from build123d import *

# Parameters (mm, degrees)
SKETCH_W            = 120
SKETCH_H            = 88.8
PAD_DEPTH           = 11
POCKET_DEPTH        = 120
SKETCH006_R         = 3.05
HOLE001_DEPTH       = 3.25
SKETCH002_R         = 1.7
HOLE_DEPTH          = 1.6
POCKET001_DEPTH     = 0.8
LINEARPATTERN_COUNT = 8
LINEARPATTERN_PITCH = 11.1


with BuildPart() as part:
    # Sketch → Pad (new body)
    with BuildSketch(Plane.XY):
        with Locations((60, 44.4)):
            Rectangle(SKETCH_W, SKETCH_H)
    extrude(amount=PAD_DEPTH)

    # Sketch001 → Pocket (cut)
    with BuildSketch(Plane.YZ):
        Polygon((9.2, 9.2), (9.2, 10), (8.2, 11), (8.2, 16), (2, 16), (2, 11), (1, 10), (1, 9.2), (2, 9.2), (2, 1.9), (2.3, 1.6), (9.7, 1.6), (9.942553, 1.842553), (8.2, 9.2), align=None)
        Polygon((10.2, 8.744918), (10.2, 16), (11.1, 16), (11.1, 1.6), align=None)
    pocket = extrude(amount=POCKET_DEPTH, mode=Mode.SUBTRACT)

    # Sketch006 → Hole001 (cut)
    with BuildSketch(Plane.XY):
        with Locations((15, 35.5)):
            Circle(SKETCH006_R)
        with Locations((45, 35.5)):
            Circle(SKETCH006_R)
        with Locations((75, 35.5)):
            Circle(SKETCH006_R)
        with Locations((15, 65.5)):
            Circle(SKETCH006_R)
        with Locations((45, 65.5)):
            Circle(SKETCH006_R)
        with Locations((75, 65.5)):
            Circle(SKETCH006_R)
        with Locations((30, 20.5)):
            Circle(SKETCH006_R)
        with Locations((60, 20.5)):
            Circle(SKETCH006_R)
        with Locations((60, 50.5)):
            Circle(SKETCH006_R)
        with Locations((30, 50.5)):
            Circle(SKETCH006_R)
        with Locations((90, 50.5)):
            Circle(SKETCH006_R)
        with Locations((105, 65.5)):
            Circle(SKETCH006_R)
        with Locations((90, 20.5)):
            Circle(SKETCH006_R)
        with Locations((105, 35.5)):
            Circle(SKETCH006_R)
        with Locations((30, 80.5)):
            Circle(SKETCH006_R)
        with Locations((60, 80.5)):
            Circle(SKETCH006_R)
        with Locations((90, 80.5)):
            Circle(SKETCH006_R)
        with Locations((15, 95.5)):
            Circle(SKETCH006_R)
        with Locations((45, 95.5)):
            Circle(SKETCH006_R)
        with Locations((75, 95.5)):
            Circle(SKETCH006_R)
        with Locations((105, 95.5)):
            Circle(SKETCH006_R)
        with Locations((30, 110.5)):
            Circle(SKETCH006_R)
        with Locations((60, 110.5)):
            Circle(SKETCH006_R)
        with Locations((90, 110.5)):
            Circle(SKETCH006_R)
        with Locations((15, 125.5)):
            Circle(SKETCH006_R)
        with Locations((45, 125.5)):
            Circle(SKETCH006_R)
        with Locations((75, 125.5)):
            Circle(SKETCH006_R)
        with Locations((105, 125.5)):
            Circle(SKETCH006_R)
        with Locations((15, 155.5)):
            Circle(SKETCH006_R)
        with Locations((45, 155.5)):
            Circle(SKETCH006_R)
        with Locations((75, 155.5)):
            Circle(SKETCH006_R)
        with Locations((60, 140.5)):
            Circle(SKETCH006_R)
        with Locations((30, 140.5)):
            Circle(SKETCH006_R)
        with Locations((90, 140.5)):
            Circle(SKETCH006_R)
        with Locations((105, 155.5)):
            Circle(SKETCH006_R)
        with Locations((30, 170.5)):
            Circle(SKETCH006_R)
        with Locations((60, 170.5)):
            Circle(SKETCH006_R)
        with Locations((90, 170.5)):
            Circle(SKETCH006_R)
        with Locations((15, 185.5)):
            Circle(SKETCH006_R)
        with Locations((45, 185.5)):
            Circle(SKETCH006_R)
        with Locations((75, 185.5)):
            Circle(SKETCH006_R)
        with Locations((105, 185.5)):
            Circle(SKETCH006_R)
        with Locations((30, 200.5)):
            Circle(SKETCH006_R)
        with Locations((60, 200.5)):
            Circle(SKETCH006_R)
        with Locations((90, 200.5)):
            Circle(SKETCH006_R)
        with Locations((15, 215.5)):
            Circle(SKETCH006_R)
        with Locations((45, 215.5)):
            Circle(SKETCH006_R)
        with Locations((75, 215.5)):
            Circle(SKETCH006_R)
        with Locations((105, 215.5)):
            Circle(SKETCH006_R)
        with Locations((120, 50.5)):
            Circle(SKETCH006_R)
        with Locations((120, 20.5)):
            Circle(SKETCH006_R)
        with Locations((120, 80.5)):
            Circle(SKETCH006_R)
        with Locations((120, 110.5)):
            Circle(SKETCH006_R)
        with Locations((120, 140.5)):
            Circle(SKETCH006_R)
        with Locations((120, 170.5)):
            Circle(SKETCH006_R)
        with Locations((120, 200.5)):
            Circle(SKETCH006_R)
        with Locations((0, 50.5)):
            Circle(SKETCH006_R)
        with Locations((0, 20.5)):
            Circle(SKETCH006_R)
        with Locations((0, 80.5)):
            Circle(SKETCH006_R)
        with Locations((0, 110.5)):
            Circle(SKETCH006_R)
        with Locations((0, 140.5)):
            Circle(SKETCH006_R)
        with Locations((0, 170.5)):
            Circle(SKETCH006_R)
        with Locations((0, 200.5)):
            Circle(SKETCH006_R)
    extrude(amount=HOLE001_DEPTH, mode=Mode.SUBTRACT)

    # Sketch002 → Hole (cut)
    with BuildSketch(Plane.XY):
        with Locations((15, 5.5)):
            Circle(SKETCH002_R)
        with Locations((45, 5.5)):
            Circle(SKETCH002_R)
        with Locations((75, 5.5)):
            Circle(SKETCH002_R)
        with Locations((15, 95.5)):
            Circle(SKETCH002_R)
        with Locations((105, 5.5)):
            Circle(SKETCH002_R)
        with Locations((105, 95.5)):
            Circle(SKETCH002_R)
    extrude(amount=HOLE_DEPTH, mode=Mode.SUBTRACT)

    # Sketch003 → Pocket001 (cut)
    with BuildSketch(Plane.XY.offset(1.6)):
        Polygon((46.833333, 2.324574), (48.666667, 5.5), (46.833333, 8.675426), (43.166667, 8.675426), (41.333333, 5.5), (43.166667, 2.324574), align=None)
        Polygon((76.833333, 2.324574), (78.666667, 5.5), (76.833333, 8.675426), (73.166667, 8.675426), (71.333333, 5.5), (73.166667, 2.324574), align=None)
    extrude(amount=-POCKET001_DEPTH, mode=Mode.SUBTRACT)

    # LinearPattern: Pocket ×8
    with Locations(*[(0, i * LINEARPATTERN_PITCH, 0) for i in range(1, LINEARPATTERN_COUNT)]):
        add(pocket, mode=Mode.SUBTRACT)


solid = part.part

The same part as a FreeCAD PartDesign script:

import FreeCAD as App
import Part
import Sketcher
from FreeCAD import Vector
Q = App.Units.Quantity


def add_polygon(sketch, points):
    """Adds a closed chain of lines whose ends are joined by coincident constraints."""
    first, n = sketch.GeometryCount, len(points)
    for a, b in zip(points, points[1:] + points[:1]):
        sketch.addGeometry(Part.LineSegment(App.Vector(*a, 0), App.Vector(*b, 0)), False)
    for i in range(n):
        sketch.addConstraint(Sketcher.Constraint("Coincident", first + i, 2, first + (i + 1) % n, 1))

doc = App.newDocument("Part")
body = doc.addObject("PartDesign::Body", "Body")

# Sketch on XY plane
sketch1 = doc.addObject("Sketcher::SketchObject", "Sketch")
body.addObject(sketch1)
sketch1.AttachmentSupport = (doc.XY_Plane, [""])
sketch1.MapMode = "FlatFace"
add_polygon(sketch1, [(0, 88.8), (0, 0), (120, 0), (120, 88.8)])  # lines 0-3
sketch1.addConstraint([
    Sketcher.Constraint("Vertical", 0),
    Sketcher.Constraint("Horizontal", 1),
    Sketcher.Constraint("Vertical", 2),
    Sketcher.Constraint("Horizontal", 3),
    Sketcher.Constraint("Coincident", 0, 2, -1, 1),
    Sketcher.Constraint("DistanceX", 1, 1, 1, 2, Q("120 mm")),
    Sketcher.Constraint("DistanceY", 0, 2, 0, 1, Q("88.8 mm")),
])
pad1 = doc.addObject("PartDesign::Pad", "Pad")
body.addObject(pad1)
pad1.Profile = sketch1
pad1.Length = 11

# Sketch on YZ plane
sketch2 = doc.addObject("Sketcher::SketchObject", "Sketch001")
body.addObject(sketch2)
sketch2.AttachmentSupport = (doc.YZ_Plane, [""])
sketch2.MapMode = "FlatFace"
add_polygon(sketch2, [(9.2, 9.2), (9.2, 10), (8.2, 11), (8.2, 16), (2, 16), (2, 11), (1, 10), (1, 9.2), (2, 9.2), (2, 1.9), (2.3, 1.6), (9.7, 1.6), (9.942553, 1.842553), (8.2, 9.2)])  # lines 0-13
add_polygon(sketch2, [(10.2, 16), (10.2, 8.744918), (11.1, 1.6), (11.1, 16)])  # lines 14-17
sketch2.addConstraint([
    Sketcher.Constraint("Vertical", 0),
    Sketcher.Constraint("Vertical", 2),
    Sketcher.Constraint("Horizontal", 3),
    Sketcher.Constraint("Vertical", 4),
    Sketcher.Constraint("Vertical", 6),
    Sketcher.Constraint("Horizontal", 7),
    Sketcher.Constraint("Vertical", 8),
    Sketcher.Constraint("Horizontal", 10),
    Sketcher.Constraint("Horizontal", 13),
    Sketcher.Constraint("Vertical", 14),
    Sketcher.Constraint("Vertical", 16),
    Sketcher.Constraint("Horizontal", 17),
    Sketcher.Constraint("Perpendicular", 1, 5),
    Sketcher.Constraint("Perpendicular", 5, 9),
    Sketcher.Constraint("Perpendicular", 9, 11),
    Sketcher.Constraint("Horizontal", 1, 2, 4, 2),
    Sketcher.Constraint("Horizontal", 0, 2, 5, 2),
    Sketcher.Constraint("Horizontal", 7, 2, 12, 2),
    Sketcher.Constraint("Horizontal", 10, 2, 15, 2),
    Sketcher.Constraint("Horizontal", 3, 2, 16, 2),
    Sketcher.Constraint("Vertical", 4, 2, 7, 2),
    Sketcher.Constraint("Vertical", 2, 2, 12, 2),
    Sketcher.Constraint("Equal", 7, 13),
    Sketcher.Constraint("DistanceX", 7, 1, 7, 2, Q("1 mm")),
    Sketcher.Constraint("DistanceY", 2, 1, 2, 2, Q("5 mm")),
    Sketcher.Constraint("DistanceX", 3, 2, 3, 1, Q("6.2 mm")),
    Sketcher.Constraint("DistanceX", 10, 1, 10, 2, Q("7.4 mm")),
    Sketcher.Constraint("DistanceX", 17, 2, 17, 1, Q("0.9 mm")),
    Sketcher.Constraint("DistanceY", 0, 1, 0, 2, Q("0.8 mm")),
    Sketcher.Constraint("DistanceY", 8, 2, 8, 1, Q("7.3 mm")),
    Sketcher.Constraint("DistanceY", 16, 1, 16, 2, Q("14.4 mm")),
    Sketcher.Constraint("DistanceY", -1, 1, 0, 2, Q("10 mm")),
    Sketcher.Constraint("DistanceX", -1, 1, 3, 2, Q("2 mm")),
    Sketcher.Constraint("DistanceX", 13, 2, 14, 2, Q("1 mm")),
    Sketcher.Constraint("DistanceY", 14, 2, 14, 1, Q("7.255082 mm")),
    Sketcher.Constraint("Distance", 11, Q("0.343022 mm")),
])
pocket1 = doc.addObject("PartDesign::Pocket", "Pocket")
body.addObject(pocket1)
pocket1.Profile = sketch2
pocket1.Length = 120
pocket1.Reversed = True

# Sketch on XY plane
sketch3 = doc.addObject("Sketcher::SketchObject", "Sketch002")
body.addObject(sketch3)
sketch3.AttachmentSupport = (doc.XY_Plane, [""])
sketch3.MapMode = "FlatFace"
sketch3.addGeometry([
    Part.Circle(Vector(15, 35.5, 0), Vector(0, 0, 1), 3.05),  # 0
    Part.Circle(Vector(45, 35.5, 0), Vector(0, 0, 1), 3.05),  # 1
    Part.Circle(Vector(75, 35.5, 0), Vector(0, 0, 1), 3.05),  # 2
    Part.Circle(Vector(15, 65.5, 0), Vector(0, 0, 1), 3.05),  # 3
    Part.Circle(Vector(45, 65.5, 0), Vector(0, 0, 1), 3.05),  # 4
    Part.Circle(Vector(75, 65.5, 0), Vector(0, 0, 1), 3.05),  # 5
    Part.Circle(Vector(30, 20.5, 0), Vector(0, 0, 1), 3.05),  # 6
    Part.Circle(Vector(60, 20.5, 0), Vector(0, 0, 1), 3.05),  # 7
    Part.Circle(Vector(60, 50.5, 0), Vector(0, 0, 1), 3.05),  # 8
    Part.Circle(Vector(30, 50.5, 0), Vector(0, 0, 1), 3.05),  # 9
    Part.Circle(Vector(90, 50.5, 0), Vector(0, 0, 1), 3.05),  # 10
    Part.Circle(Vector(105, 65.5, 0), Vector(0, 0, 1), 3.05),  # 11
    Part.Circle(Vector(90, 20.5, 0), Vector(0, 0, 1), 3.05),  # 12
    Part.Circle(Vector(105, 35.5, 0), Vector(0, 0, 1), 3.05),  # 13
    Part.Circle(Vector(30, 80.5, 0), Vector(0, 0, 1), 3.05),  # 14
    Part.Circle(Vector(60, 80.5, 0), Vector(0, 0, 1), 3.05),  # 15
    Part.Circle(Vector(90, 80.5, 0), Vector(0, 0, 1), 3.05),  # 16
    Part.Circle(Vector(15, 95.5, 0), Vector(0, 0, 1), 3.05),  # 17
    Part.Circle(Vector(45, 95.5, 0), Vector(0, 0, 1), 3.05),  # 18
    Part.Circle(Vector(75, 95.5, 0), Vector(0, 0, 1), 3.05),  # 19
    Part.Circle(Vector(105, 95.5, 0), Vector(0, 0, 1), 3.05),  # 20
    Part.Circle(Vector(30, 110.5, 0), Vector(0, 0, 1), 3.05),  # 21
    Part.Circle(Vector(60, 110.5, 0), Vector(0, 0, 1), 3.05),  # 22
    Part.Circle(Vector(90, 110.5, 0), Vector(0, 0, 1), 3.05),  # 23
    Part.Circle(Vector(15, 125.5, 0), Vector(0, 0, 1), 3.05),  # 24
    Part.Circle(Vector(45, 125.5, 0), Vector(0, 0, 1), 3.05),  # 25
    Part.Circle(Vector(75, 125.5, 0), Vector(0, 0, 1), 3.05),  # 26
    Part.Circle(Vector(105, 125.5, 0), Vector(0, 0, 1), 3.05),  # 27
    Part.Circle(Vector(15, 155.5, 0), Vector(0, 0, 1), 3.05),  # 28
    Part.Circle(Vector(45, 155.5, 0), Vector(0, 0, 1), 3.05),  # 29
    Part.Circle(Vector(75, 155.5, 0), Vector(0, 0, 1), 3.05),  # 30
    Part.Circle(Vector(60, 140.5, 0), Vector(0, 0, 1), 3.05),  # 31
    Part.Circle(Vector(30, 140.5, 0), Vector(0, 0, 1), 3.05),  # 32
    Part.Circle(Vector(90, 140.5, 0), Vector(0, 0, 1), 3.05),  # 33
    Part.Circle(Vector(105, 155.5, 0), Vector(0, 0, 1), 3.05),  # 34
    Part.Circle(Vector(30, 170.5, 0), Vector(0, 0, 1), 3.05),  # 35
    Part.Circle(Vector(60, 170.5, 0), Vector(0, 0, 1), 3.05),  # 36
    Part.Circle(Vector(90, 170.5, 0), Vector(0, 0, 1), 3.05),  # 37
    Part.Circle(Vector(15, 185.5, 0), Vector(0, 0, 1), 3.05),  # 38
    Part.Circle(Vector(45, 185.5, 0), Vector(0, 0, 1), 3.05),  # 39
    Part.Circle(Vector(75, 185.5, 0), Vector(0, 0, 1), 3.05),  # 40
    Part.Circle(Vector(105, 185.5, 0), Vector(0, 0, 1), 3.05),  # 41
    Part.Circle(Vector(30, 200.5, 0), Vector(0, 0, 1), 3.05),  # 42
    Part.Circle(Vector(60, 200.5, 0), Vector(0, 0, 1), 3.05),  # 43
    Part.Circle(Vector(90, 200.5, 0), Vector(0, 0, 1), 3.05),  # 44
    Part.Circle(Vector(15, 215.5, 0), Vector(0, 0, 1), 3.05),  # 45
    Part.Circle(Vector(45, 215.5, 0), Vector(0, 0, 1), 3.05),  # 46
    Part.Circle(Vector(75, 215.5, 0), Vector(0, 0, 1), 3.05),  # 47
    Part.Circle(Vector(105, 215.5, 0), Vector(0, 0, 1), 3.05),  # 48
    Part.Circle(Vector(120, 50.5, 0), Vector(0, 0, 1), 3.05),  # 49
    Part.Circle(Vector(120, 20.5, 0), Vector(0, 0, 1), 3.05),  # 50
    Part.Circle(Vector(120, 80.5, 0), Vector(0, 0, 1), 3.05),  # 51
    Part.Circle(Vector(120, 110.5, 0), Vector(0, 0, 1), 3.05),  # 52
    Part.Circle(Vector(120, 140.5, 0), Vector(0, 0, 1), 3.05),  # 53
    Part.Circle(Vector(120, 170.5, 0), Vector(0, 0, 1), 3.05),  # 54
    Part.Circle(Vector(120, 200.5, 0), Vector(0, 0, 1), 3.05),  # 55
    Part.Circle(Vector(0, 50.5, 0), Vector(0, 0, 1), 3.05),  # 56
    Part.Circle(Vector(0, 20.5, 0), Vector(0, 0, 1), 3.05),  # 57
    Part.Circle(Vector(0, 80.5, 0), Vector(0, 0, 1), 3.05),  # 58
    Part.Circle(Vector(0, 110.5, 0), Vector(0, 0, 1), 3.05),  # 59
    Part.Circle(Vector(0, 140.5, 0), Vector(0, 0, 1), 3.05),  # 60
    Part.Circle(Vector(0, 170.5, 0), Vector(0, 0, 1), 3.05),  # 61
    Part.Circle(Vector(0, 200.5, 0), Vector(0, 0, 1), 3.05),  # 62
], False)
sketch3.addConstraint([
    Sketcher.Constraint("Equal", 0, 1),
    Sketcher.Constraint("Equal", 1, 2),
    Sketcher.Constraint("Equal", 2, 3),
    Sketcher.Constraint("Equal", 3, 4),
    Sketcher.Constraint("Equal", 4, 5),
    Sketcher.Constraint("Equal", 5, 6),
    Sketcher.Constraint("Equal", 6, 7),
    Sketcher.Constraint("Equal", 7, 8),
    Sketcher.Constraint("Equal", 8, 9),
    Sketcher.Constraint("Equal", 9, 10),
    Sketcher.Constraint("Equal", 10, 11),
    Sketcher.Constraint("Equal", 11, 12),
    Sketcher.Constraint("Equal", 12, 13),
    Sketcher.Constraint("Equal", 13, 14),
    Sketcher.Constraint("Equal", 14, 15),
    Sketcher.Constraint("Equal", 15, 16),
    Sketcher.Constraint("Equal", 16, 17),
    Sketcher.Constraint("Equal", 17, 18),
    Sketcher.Constraint("Equal", 18, 19),
    Sketcher.Constraint("Equal", 19, 20),
    Sketcher.Constraint("Equal", 20, 21),
    Sketcher.Constraint("Equal", 21, 22),
    Sketcher.Constraint("Equal", 22, 23),
    Sketcher.Constraint("Equal", 23, 24),
    Sketcher.Constraint("Equal", 24, 25),
    Sketcher.Constraint("Equal", 25, 26),
    Sketcher.Constraint("Equal", 26, 27),
    Sketcher.Constraint("Equal", 27, 28),
    Sketcher.Constraint("Equal", 28, 29),
    Sketcher.Constraint("Equal", 29, 30),
    Sketcher.Constraint("Equal", 30, 31),
    Sketcher.Constraint("Equal", 31, 32),
    Sketcher.Constraint("Equal", 32, 33),
    Sketcher.Constraint("Equal", 33, 34),
    Sketcher.Constraint("Equal", 34, 35),
    Sketcher.Constraint("Equal", 35, 36),
    Sketcher.Constraint("Equal", 36, 37),
    Sketcher.Constraint("Equal", 37, 38),
    Sketcher.Constraint("Equal", 38, 39),
    Sketcher.Constraint("Equal", 39, 40),
    Sketcher.Constraint("Equal", 40, 41),
    Sketcher.Constraint("Equal", 41, 42),
    Sketcher.Constraint("Equal", 42, 43),
    Sketcher.Constraint("Equal", 43, 44),
    Sketcher.Constraint("Equal", 44, 45),
    Sketcher.Constraint("Equal", 45, 46),
    Sketcher.Constraint("Equal", 46, 47),
    Sketcher.Constraint("Equal", 47, 48),
    Sketcher.Constraint("Equal", 48, 49),
    Sketcher.Constraint("Equal", 49, 50),
    Sketcher.Constraint("Equal", 50, 51),
    Sketcher.Constraint("Equal", 51, 52),
    Sketcher.Constraint("Equal", 52, 53),
    Sketcher.Constraint("Equal", 53, 54),
    Sketcher.Constraint("Equal", 54, 55),
    Sketcher.Constraint("Equal", 55, 56),
    Sketcher.Constraint("Equal", 56, 57),
    Sketcher.Constraint("Equal", 57, 58),
    Sketcher.Constraint("Equal", 58, 59),
    Sketcher.Constraint("Equal", 59, 60),
    Sketcher.Constraint("Equal", 60, 61),
    Sketcher.Constraint("Equal", 61, 62),
    Sketcher.Constraint("PointOnObject", 56, 3, -2),
    Sketcher.Constraint("PointOnObject", 57, 3, -2),
    Sketcher.Constraint("PointOnObject", 58, 3, -2),
    Sketcher.Constraint("PointOnObject", 59, 3, -2),
    Sketcher.Constraint("PointOnObject", 60, 3, -2),
    Sketcher.Constraint("PointOnObject", 61, 3, -2),
    Sketcher.Constraint("PointOnObject", 62, 3, -2),
    Sketcher.Constraint("Horizontal", 0, 3, 1, 3),
    Sketcher.Constraint("Horizontal", 1, 3, 2, 3),
    Sketcher.Constraint("Horizontal", 3, 3, 4, 3),
    Sketcher.Constraint("Horizontal", 4, 3, 5, 3),
    Sketcher.Constraint("Horizontal", 6, 3, 7, 3),
    Sketcher.Constraint("Horizontal", 8, 3, 9, 3),
    Sketcher.Constraint("Horizontal", 9, 3, 10, 3),
    Sketcher.Constraint("Horizontal", 5, 3, 11, 3),
    Sketcher.Constraint("Horizontal", 7, 3, 12, 3),
    Sketcher.Constraint("Horizontal", 2, 3, 13, 3),
    Sketcher.Constraint("Horizontal", 14, 3, 15, 3),
    Sketcher.Constraint("Horizontal", 15, 3, 16, 3),
    Sketcher.Constraint("Horizontal", 17, 3, 18, 3),
    Sketcher.Constraint("Horizontal", 18, 3, 19, 3),
    Sketcher.Constraint("Horizontal", 19, 3, 20, 3),
    Sketcher.Constraint("Horizontal", 21, 3, 22, 3),
    Sketcher.Constraint("Horizontal", 22, 3, 23, 3),
    Sketcher.Constraint("Horizontal", 24, 3, 25, 3),
    Sketcher.Constraint("Horizontal", 25, 3, 26, 3),
    Sketcher.Constraint("Horizontal", 26, 3, 27, 3),
    Sketcher.Constraint("Horizontal", 28, 3, 29, 3),
    Sketcher.Constraint("Horizontal", 29, 3, 30, 3),
    Sketcher.Constraint("Horizontal", 31, 3, 32, 3),
    Sketcher.Constraint("Horizontal", 32, 3, 33, 3),
    Sketcher.Constraint("Horizontal", 30, 3, 34, 3),
    Sketcher.Constraint("Horizontal", 35, 3, 36, 3),
    Sketcher.Constraint("Horizontal", 36, 3, 37, 3),
    Sketcher.Constraint("Horizontal", 38, 3, 39, 3),
    Sketcher.Constraint("Horizontal", 39, 3, 40, 3),
    Sketcher.Constraint("Horizontal", 40, 3, 41, 3),
    Sketcher.Constraint("Horizontal", 42, 3, 43, 3),
    Sketcher.Constraint("Horizontal", 43, 3, 44, 3),
    Sketcher.Constraint("Horizontal", 45, 3, 46, 3),
    Sketcher.Constraint("Horizontal", 46, 3, 47, 3),
    Sketcher.Constraint("Horizontal", 47, 3, 48, 3),
    Sketcher.Constraint("Horizontal", 10, 3, 49, 3),
    Sketcher.Constraint("Horizontal", 12, 3, 50, 3),
    Sketcher.Constraint("Horizontal", 16, 3, 51, 3),
    Sketcher.Constraint("Horizontal", 23, 3, 52, 3),
    Sketcher.Constraint("Horizontal", 33, 3, 53, 3),
    Sketcher.Constraint("Horizontal", 37, 3, 54, 3),
    Sketcher.Constraint("Horizontal", 44, 3, 55, 3),
    Sketcher.Constraint("Horizontal", 49, 3, 56, 3),
    Sketcher.Constraint("Horizontal", 50, 3, 57, 3),
    Sketcher.Constraint("Horizontal", 51, 3, 58, 3),
    Sketcher.Constraint("Horizontal", 52, 3, 59, 3),
    Sketcher.Constraint("Horizontal", 53, 3, 60, 3),
    Sketcher.Constraint("Horizontal", 54, 3, 61, 3),
    Sketcher.Constraint("Horizontal", 55, 3, 62, 3),
    Sketcher.Constraint("Vertical", 0, 3, 3, 3),
    Sketcher.Constraint("Vertical", 1, 3, 4, 3),
    Sketcher.Constraint("Vertical", 2, 3, 5, 3),
    Sketcher.Constraint("Vertical", 7, 3, 8, 3),
    Sketcher.Constraint("Vertical", 6, 3, 9, 3),
    Sketcher.Constraint("Vertical", 10, 3, 12, 3),
    Sketcher.Constraint("Vertical", 11, 3, 13, 3),
    Sketcher.Constraint("Vertical", 9, 3, 14, 3),
    Sketcher.Constraint("Vertical", 8, 3, 15, 3),
    Sketcher.Constraint("Vertical", 12, 3, 16, 3),
    Sketcher.Constraint("Vertical", 3, 3, 17, 3),
    Sketcher.Constraint("Vertical", 4, 3, 18, 3),
    Sketcher.Constraint("Vertical", 5, 3, 19, 3),
    Sketcher.Constraint("Vertical", 13, 3, 20, 3),
    Sketcher.Constraint("Vertical", 14, 3, 21, 3),
    Sketcher.Constraint("Vertical", 15, 3, 22, 3),
    Sketcher.Constraint("Vertical", 16, 3, 23, 3),
    Sketcher.Constraint("Vertical", 17, 3, 24, 3),
    Sketcher.Constraint("Vertical", 18, 3, 25, 3),
    Sketcher.Constraint("Vertical", 19, 3, 26, 3),
    Sketcher.Constraint("Vertical", 20, 3, 27, 3),
    Sketcher.Constraint("Vertical", 24, 3, 28, 3),
    Sketcher.Constraint("Vertical", 25, 3, 29, 3),
    Sketcher.Constraint("Vertical", 26, 3, 30, 3),
    Sketcher.Constraint("Vertical", 22, 3, 31, 3),
    Sketcher.Constraint("Vertical", 21, 3, 32, 3),
    Sketcher.Constraint("Vertical", 23, 3, 33, 3),
    Sketcher.Constraint("Vertical", 27, 3, 34, 3),
    Sketcher.Constraint("Vertical", 32, 3, 35, 3),
    Sketcher.Constraint("Vertical", 31, 3, 36, 3),
    Sketcher.Constraint("Vertical", 33, 3, 37, 3),
    Sketcher.Constraint("Vertical", 28, 3, 38, 3),
    Sketcher.Constraint("Vertical", 29, 3, 39, 3),
    Sketcher.Constraint("Vertical", 30, 3, 40, 3),
    Sketcher.Constraint("Vertical", 34, 3, 41, 3),
    Sketcher.Constraint("Vertical", 35, 3, 42, 3),
    Sketcher.Constraint("Vertical", 36, 3, 43, 3),
    Sketcher.Constraint("Vertical", 37, 3, 44, 3),
    Sketcher.Constraint("Vertical", 38, 3, 45, 3),
    Sketcher.Constraint("Vertical", 39, 3, 46, 3),
    Sketcher.Constraint("Vertical", 40, 3, 47, 3),
    Sketcher.Constraint("Vertical", 41, 3, 48, 3),
    Sketcher.Constraint("Vertical", 49, 3, 50, 3),
    Sketcher.Constraint("Vertical", 50, 3, 51, 3),
    Sketcher.Constraint("Vertical", 51, 3, 52, 3),
    Sketcher.Constraint("Vertical", 52, 3, 53, 3),
    Sketcher.Constraint("Vertical", 53, 3, 54, 3),
    Sketcher.Constraint("Vertical", 54, 3, 55, 3),
    Sketcher.Constraint("Diameter", 0, Q("6.1 mm")),
    Sketcher.Constraint("DistanceX", -1, 1, 0, 3, Q("15 mm")),
    Sketcher.Constraint("DistanceX", -1, 1, 1, 3, Q("45 mm")),
    Sketcher.Constraint("DistanceX", -1, 1, 2, 3, Q("75 mm")),
    Sketcher.Constraint("DistanceX", -1, 1, 6, 3, Q("30 mm")),
    Sketcher.Constraint("DistanceX", -1, 1, 7, 3, Q("60 mm")),
    Sketcher.Constraint("DistanceX", -1, 1, 10, 3, Q("90 mm")),
    Sketcher.Constraint("DistanceX", -1, 1, 11, 3, Q("105 mm")),
    Sketcher.Constraint("DistanceX", -1, 1, 49, 3, Q("120 mm")),
    Sketcher.Constraint("DistanceY", -1, 1, 0, 3, Q("35.5 mm")),
    Sketcher.Constraint("DistanceY", -1, 1, 3, 3, Q("65.5 mm")),
    Sketcher.Constraint("DistanceY", -1, 1, 6, 3, Q("20.5 mm")),
    Sketcher.Constraint("DistanceY", -1, 1, 8, 3, Q("50.5 mm")),
    Sketcher.Constraint("DistanceY", -1, 1, 14, 3, Q("80.5 mm")),
    Sketcher.Constraint("DistanceY", -1, 1, 17, 3, Q("95.5 mm")),
    Sketcher.Constraint("DistanceY", -1, 1, 21, 3, Q("110.5 mm")),
    Sketcher.Constraint("DistanceY", -1, 1, 24, 3, Q("125.5 mm")),
    Sketcher.Constraint("DistanceY", -1, 1, 28, 3, Q("155.5 mm")),
    Sketcher.Constraint("DistanceY", -1, 1, 31, 3, Q("140.5 mm")),
    Sketcher.Constraint("DistanceY", -1, 1, 35, 3, Q("170.5 mm")),
    Sketcher.Constraint("DistanceY", -1, 1, 38, 3, Q("185.5 mm")),
    Sketcher.Constraint("DistanceY", -1, 1, 42, 3, Q("200.5 mm")),
    Sketcher.Constraint("DistanceY", -1, 1, 45, 3, Q("215.5 mm")),
])
pocket2 = doc.addObject("PartDesign::Pocket", "Pocket001")
body.addObject(pocket2)
pocket2.Profile = sketch3
pocket2.Length = 3.25
pocket2.Reversed = True

# Sketch on XY plane
sketch4 = doc.addObject("Sketcher::SketchObject", "Sketch003")
body.addObject(sketch4)
sketch4.AttachmentSupport = (doc.XY_Plane, [""])
sketch4.MapMode = "FlatFace"
sketch4.addGeometry([
    Part.Circle(Vector(15, 5.5, 0), Vector(0, 0, 1), 1.7),  # 0
    Part.Circle(Vector(45, 5.5, 0), Vector(0, 0, 1), 1.7),  # 1
    Part.Circle(Vector(75, 5.5, 0), Vector(0, 0, 1), 1.7),  # 2
    Part.Circle(Vector(15, 95.5, 0), Vector(0, 0, 1), 1.7),  # 3
    Part.Circle(Vector(105, 5.5, 0), Vector(0, 0, 1), 1.7),  # 4
    Part.Circle(Vector(105, 95.5, 0), Vector(0, 0, 1), 1.7),  # 5
], False)
sketch4.addConstraint([
    Sketcher.Constraint("Equal", 0, 1),
    Sketcher.Constraint("Equal", 1, 2),
    Sketcher.Constraint("Equal", 2, 3),
    Sketcher.Constraint("Equal", 3, 4),
    Sketcher.Constraint("Equal", 4, 5),
    Sketcher.Constraint("Horizontal", 0, 3, 1, 3),
    Sketcher.Constraint("Horizontal", 1, 3, 2, 3),
    Sketcher.Constraint("Horizontal", 2, 3, 4, 3),
    Sketcher.Constraint("Horizontal", 3, 3, 5, 3),
    Sketcher.Constraint("Vertical", 0, 3, 3, 3),
    Sketcher.Constraint("Vertical", 4, 3, 5, 3),
    Sketcher.Constraint("Diameter", 0, Q("3.4 mm")),
    Sketcher.Constraint("DistanceX", -1, 1, 0, 3, Q("15 mm")),
    Sketcher.Constraint("DistanceX", -1, 1, 1, 3, Q("45 mm")),
    Sketcher.Constraint("DistanceX", -1, 1, 2, 3, Q("75 mm")),
    Sketcher.Constraint("DistanceX", -1, 1, 4, 3, Q("105 mm")),
    Sketcher.Constraint("DistanceY", 0, 3, 3, 3, Q("90 mm")),
    Sketcher.Constraint("DistanceY", -1, 1, 0, 3, Q("5.5 mm")),
])
pocket3 = doc.addObject("PartDesign::Pocket", "Pocket002")
body.addObject(pocket3)
pocket3.Profile = sketch4
pocket3.Length = 1.6
pocket3.Reversed = True

# Sketch on XY plane
sketch5 = doc.addObject("Sketcher::SketchObject", "Sketch004")
body.addObject(sketch5)
sketch5.AttachmentSupport = (doc.XY_Plane, [""])
sketch5.MapMode = "FlatFace"
sketch5.AttachmentOffset = App.Placement(Vector(0, 0, 1.6), App.Rotation())
add_polygon(sketch5, [(46.833333, 2.324574), (48.666667, 5.5), (46.833333, 8.675426), (43.166667, 8.675426), (41.333333, 5.5), (43.166667, 2.324574)])  # lines 0-5
add_polygon(sketch5, [(76.833333, 2.324574), (78.666667, 5.5), (76.833333, 8.675426), (73.166667, 8.675426), (71.333333, 5.5), (73.166667, 2.324574)])  # lines 6-11
sketch5.addConstraint([
    Sketcher.Constraint("Horizontal", 2),
    Sketcher.Constraint("Horizontal", 5),
    Sketcher.Constraint("Horizontal", 8),
    Sketcher.Constraint("Horizontal", 11),
    Sketcher.Constraint("Parallel", 0, 3),
    Sketcher.Constraint("Parallel", 1, 4),
    Sketcher.Constraint("Parallel", 3, 6),
    Sketcher.Constraint("Parallel", 4, 7),
    Sketcher.Constraint("Parallel", 6, 9),
    Sketcher.Constraint("Parallel", 7, 10),
    Sketcher.Constraint("Horizontal", 0, 2, 3, 2),
    Sketcher.Constraint("Horizontal", 3, 2, 6, 2),
    Sketcher.Constraint("Horizontal", 2, 2, 7, 2),
    Sketcher.Constraint("Horizontal", 6, 2, 9, 2),
    Sketcher.Constraint("Horizontal", 5, 2, 10, 2),
    Sketcher.Constraint("Vertical", 2, 2, 4, 2),
    Sketcher.Constraint("Vertical", 1, 2, 5, 2),
    Sketcher.Constraint("Equal", 5, 8),
    Sketcher.Constraint("Angle", 0, Q("59.999987 deg")),
    Sketcher.Constraint("DistanceX", 0, 2, 6, 2, Q("30 mm")),
    Sketcher.Constraint("DistanceY", -1, 1, 0, 2, Q("5.5 mm")),
    Sketcher.Constraint("DistanceX", 2, 2, 0, 2, Q("5.5 mm")),
    Sketcher.Constraint("DistanceX", 2, 2, 2, 1, Q("3.666666 mm")),
    Sketcher.Constraint("DistanceX", -1, 1, 0, 2, Q("48.666667 mm")),
])
pocket4 = doc.addObject("PartDesign::Pocket", "Pocket003")
body.addObject(pocket4)
pocket4.Profile = sketch5
pocket4.Length = 0.8
doc.recompute()

linearpattern = doc.addObject("PartDesign::LinearPattern", "LinearPattern")
body.addObject(linearpattern)
linearpattern.Originals = [pocket1]
linearpattern.Direction = (doc.Y_Axis, [""])
linearpattern.Mode = "offset"
linearpattern.Offset = 11.1
linearpattern.Occurrences = 8
body.Tip = linearpattern

doc.recompute()
